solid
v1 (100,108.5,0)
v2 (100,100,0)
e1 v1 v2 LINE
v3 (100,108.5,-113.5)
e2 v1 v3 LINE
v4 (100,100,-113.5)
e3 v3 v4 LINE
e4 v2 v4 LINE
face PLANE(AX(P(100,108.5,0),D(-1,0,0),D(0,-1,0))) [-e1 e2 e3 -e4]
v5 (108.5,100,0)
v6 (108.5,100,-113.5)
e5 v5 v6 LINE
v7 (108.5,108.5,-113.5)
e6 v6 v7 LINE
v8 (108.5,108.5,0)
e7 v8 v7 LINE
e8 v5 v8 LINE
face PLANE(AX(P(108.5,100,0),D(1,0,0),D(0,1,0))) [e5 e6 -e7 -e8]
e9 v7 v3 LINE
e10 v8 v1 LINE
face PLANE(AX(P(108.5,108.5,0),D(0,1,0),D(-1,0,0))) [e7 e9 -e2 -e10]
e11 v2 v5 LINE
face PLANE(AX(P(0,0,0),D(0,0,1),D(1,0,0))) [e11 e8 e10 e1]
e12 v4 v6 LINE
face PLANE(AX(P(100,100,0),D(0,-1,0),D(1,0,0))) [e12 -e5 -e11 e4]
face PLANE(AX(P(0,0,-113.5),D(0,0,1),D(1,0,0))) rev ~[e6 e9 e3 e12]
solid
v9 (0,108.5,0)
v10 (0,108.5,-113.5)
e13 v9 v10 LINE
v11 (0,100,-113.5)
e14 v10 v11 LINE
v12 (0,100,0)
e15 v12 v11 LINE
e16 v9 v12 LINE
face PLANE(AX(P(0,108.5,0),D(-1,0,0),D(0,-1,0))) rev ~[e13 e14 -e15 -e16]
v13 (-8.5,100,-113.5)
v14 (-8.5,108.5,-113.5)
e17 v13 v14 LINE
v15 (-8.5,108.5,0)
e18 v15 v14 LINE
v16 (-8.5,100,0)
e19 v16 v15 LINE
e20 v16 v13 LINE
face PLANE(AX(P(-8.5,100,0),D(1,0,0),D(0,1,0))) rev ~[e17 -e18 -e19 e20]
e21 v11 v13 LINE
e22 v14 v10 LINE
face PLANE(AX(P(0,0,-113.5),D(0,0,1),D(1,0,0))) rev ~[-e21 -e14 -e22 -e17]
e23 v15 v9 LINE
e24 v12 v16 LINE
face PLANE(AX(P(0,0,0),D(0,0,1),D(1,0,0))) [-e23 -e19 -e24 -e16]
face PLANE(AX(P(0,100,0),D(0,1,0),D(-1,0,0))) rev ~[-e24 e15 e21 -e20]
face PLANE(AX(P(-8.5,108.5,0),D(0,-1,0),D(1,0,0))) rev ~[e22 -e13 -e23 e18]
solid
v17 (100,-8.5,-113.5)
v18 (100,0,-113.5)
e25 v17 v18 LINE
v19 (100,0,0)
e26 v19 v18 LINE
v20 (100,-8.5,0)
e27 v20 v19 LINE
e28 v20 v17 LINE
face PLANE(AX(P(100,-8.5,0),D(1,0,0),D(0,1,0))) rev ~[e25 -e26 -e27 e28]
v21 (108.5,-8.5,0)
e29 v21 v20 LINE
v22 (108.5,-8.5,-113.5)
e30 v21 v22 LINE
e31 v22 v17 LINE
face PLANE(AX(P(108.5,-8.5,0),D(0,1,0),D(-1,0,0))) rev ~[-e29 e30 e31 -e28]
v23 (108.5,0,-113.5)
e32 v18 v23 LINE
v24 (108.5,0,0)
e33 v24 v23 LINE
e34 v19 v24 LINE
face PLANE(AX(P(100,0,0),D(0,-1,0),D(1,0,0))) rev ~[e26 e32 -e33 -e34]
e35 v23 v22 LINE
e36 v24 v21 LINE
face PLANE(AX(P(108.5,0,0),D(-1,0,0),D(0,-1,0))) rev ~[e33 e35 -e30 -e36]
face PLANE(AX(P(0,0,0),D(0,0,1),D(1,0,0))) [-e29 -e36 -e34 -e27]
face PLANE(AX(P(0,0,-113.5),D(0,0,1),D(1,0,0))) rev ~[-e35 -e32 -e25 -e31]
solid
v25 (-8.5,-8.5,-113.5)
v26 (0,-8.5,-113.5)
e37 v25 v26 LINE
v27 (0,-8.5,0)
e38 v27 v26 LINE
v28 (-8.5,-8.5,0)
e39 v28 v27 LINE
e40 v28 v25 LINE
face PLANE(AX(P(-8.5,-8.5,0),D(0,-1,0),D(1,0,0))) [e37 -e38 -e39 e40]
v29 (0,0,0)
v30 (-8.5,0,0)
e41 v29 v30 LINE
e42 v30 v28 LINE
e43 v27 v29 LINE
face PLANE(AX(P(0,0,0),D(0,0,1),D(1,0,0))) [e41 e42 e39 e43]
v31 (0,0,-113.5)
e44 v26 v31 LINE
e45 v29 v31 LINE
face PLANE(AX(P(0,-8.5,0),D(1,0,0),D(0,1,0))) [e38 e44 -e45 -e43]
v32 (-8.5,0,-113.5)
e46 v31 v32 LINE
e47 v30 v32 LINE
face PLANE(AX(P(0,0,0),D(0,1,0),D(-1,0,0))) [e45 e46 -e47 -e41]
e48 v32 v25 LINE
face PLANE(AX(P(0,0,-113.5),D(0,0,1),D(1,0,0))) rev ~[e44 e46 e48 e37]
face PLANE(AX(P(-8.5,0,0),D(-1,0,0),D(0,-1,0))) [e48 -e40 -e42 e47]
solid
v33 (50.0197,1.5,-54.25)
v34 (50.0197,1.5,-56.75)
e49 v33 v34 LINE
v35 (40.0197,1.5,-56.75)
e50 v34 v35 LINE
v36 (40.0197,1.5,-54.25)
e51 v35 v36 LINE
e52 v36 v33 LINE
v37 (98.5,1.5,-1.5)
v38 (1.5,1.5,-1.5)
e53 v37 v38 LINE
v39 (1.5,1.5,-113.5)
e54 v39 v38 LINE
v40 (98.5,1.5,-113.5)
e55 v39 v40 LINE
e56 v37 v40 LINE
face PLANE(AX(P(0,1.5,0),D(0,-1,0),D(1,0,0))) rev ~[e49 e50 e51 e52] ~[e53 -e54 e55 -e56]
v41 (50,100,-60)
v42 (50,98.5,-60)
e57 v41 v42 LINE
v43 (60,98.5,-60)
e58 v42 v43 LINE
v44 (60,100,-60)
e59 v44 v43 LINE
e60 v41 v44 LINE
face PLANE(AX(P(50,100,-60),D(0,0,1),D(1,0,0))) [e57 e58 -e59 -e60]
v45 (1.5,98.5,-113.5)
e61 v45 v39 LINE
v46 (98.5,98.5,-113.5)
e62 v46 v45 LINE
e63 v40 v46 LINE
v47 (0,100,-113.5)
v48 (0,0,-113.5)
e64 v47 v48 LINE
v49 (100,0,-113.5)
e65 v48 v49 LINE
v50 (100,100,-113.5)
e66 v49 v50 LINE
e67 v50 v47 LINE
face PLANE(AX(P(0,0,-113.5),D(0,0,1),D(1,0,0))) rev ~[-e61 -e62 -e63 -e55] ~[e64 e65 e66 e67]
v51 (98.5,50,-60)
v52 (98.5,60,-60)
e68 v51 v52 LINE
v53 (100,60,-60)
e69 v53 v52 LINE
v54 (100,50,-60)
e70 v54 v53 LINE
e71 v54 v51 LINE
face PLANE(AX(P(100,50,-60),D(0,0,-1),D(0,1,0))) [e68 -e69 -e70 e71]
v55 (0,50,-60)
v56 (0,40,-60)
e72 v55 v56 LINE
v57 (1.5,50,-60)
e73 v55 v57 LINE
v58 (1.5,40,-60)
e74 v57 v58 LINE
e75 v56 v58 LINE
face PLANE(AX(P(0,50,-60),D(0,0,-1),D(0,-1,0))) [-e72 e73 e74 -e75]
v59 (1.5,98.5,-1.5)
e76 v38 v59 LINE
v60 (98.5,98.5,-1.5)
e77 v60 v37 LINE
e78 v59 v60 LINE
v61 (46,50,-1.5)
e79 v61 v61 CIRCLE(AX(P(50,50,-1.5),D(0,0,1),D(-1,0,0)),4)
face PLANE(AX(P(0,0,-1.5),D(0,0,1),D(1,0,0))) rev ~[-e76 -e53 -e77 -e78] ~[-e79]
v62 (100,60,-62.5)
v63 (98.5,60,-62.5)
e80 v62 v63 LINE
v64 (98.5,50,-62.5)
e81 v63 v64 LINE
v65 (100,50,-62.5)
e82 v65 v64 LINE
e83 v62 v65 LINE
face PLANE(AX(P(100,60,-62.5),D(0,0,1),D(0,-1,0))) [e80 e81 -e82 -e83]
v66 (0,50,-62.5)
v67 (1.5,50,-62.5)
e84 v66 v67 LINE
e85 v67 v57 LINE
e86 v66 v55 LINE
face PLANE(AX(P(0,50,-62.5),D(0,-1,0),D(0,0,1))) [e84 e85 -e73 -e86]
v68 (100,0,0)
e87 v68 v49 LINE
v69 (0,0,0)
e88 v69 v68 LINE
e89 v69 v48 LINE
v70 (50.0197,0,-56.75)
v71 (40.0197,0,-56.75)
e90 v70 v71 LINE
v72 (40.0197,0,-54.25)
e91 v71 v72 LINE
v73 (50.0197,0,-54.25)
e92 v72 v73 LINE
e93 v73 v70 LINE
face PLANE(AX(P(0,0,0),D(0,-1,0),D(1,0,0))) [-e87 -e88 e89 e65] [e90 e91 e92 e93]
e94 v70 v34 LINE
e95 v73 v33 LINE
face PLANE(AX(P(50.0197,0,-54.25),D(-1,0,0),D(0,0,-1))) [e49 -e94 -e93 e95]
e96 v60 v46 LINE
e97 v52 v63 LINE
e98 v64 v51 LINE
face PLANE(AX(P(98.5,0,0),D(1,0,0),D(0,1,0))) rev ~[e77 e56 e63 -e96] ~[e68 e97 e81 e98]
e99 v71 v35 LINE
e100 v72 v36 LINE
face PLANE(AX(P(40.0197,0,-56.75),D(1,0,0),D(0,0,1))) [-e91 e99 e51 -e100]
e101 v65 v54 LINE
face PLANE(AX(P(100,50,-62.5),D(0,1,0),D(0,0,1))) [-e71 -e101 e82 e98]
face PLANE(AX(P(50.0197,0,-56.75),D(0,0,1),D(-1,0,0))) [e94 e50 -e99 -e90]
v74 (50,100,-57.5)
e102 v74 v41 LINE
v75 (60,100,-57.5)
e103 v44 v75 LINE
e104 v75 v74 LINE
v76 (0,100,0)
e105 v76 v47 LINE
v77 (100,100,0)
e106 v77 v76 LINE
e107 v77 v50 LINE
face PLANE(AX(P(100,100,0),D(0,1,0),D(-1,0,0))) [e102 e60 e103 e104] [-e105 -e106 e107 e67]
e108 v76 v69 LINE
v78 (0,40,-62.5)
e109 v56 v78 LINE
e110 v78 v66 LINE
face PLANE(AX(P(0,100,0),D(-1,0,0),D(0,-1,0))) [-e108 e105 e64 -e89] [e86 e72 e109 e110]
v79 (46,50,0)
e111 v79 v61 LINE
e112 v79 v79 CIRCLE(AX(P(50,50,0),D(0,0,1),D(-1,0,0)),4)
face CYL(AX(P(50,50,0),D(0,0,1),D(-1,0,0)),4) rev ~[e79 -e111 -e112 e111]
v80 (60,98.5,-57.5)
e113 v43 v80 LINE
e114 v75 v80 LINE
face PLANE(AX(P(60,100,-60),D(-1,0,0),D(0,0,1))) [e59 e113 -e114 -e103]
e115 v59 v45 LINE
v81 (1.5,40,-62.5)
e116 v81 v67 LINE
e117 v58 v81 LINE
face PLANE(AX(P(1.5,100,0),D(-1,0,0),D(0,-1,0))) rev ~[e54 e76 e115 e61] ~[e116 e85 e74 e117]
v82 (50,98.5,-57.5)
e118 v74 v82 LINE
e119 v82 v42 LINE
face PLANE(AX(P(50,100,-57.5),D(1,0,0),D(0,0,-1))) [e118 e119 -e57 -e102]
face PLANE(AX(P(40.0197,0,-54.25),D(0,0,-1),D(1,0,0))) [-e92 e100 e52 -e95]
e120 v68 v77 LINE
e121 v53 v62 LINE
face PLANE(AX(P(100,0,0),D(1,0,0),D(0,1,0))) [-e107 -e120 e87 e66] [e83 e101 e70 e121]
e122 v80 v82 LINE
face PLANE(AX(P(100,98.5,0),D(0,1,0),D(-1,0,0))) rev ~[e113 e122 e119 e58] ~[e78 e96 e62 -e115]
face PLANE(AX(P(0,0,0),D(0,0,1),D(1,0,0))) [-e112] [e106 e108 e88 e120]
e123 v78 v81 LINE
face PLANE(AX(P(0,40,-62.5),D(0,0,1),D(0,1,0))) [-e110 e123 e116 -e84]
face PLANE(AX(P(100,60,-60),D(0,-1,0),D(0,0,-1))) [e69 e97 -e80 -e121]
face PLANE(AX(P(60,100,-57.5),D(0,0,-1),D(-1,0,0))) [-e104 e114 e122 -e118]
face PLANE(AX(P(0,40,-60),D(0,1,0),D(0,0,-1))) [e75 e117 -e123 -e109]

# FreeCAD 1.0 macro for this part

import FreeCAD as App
import Part
import Sketcher
Q = App.Units.Quantity


def faces_at(feature, points):
    """Names of the faces that lie closest to the given points."""
    faces = feature.Shape.Faces
    near = lambda p: min(range(len(faces)), key=lambda i: faces[i].distToShape(Part.Vertex(*p))[0])
    return sorted({f"Face{near(p) + 1}" for p in points})


def add_polygon(sketch, points):
    """Adds a closed chain of lines whose ends are joined by coincident constraints."""
    first, n = sketch.GeometryCount, len(points)
    for a, b in zip(points, points[1:] + points[:1]):
        sketch.addGeometry(Part.LineSegment(App.Vector(*a, 0), App.Vector(*b, 0)), False)
    for i in range(n):
        sketch.addConstraint(Sketcher.Constraint("Coincident", first + i, 2, first + (i + 1) % n, 1))

doc = App.newDocument("Part")
body = doc.addObject("PartDesign::Body", "Body")
body.AllowCompound = True

# Sketch on XY plane
sketch1 = body.newObject("Sketcher::SketchObject", "Sketch")
sketch1.AttachmentSupport = (doc.getObject("XY_Plane"), [""])
sketch1.MapMode = "FlatFace"
add_polygon(sketch1, [(0, 100), (0, 0), (100, 0), (100, 100)])  # lines 0-3
sketch1.addConstraint([
    Sketcher.Constraint("Vertical", 0),
    Sketcher.Constraint("Horizontal", 1),
    Sketcher.Constraint("Vertical", 2),
    Sketcher.Constraint("Horizontal", 3),
    Sketcher.Constraint("Coincident", 0, 2, -1, 1),
    Sketcher.Constraint("Equal", 3, 0),
    Sketcher.Constraint("DistanceX", 1, 1, 1, 2, Q("100 mm")),
])
pad1 = body.newObject("PartDesign::Pad", "Pad")
pad1.Profile = sketch1
pad1.Length = 113.5
pad1.Reversed = True
doc.recompute()

thickness = body.newObject("PartDesign::Thickness", "Thickness")
thickness.Base = (pad1, faces_at(pad1, [(33.333, 66.667, -113.5)]))
thickness.Value = 1.5
thickness.Reversed = True
thickness.Join = "Intersection"

# Sketch on XY plane
sketch2 = body.newObject("Sketcher::SketchObject", "Sketch001")
sketch2.AttachmentSupport = (doc.getObject("XY_Plane"), [""])
sketch2.MapMode = "FlatFace"
add_polygon(sketch2, [(0, -8), (0, 0), (-8, 0), (-8, -8)])  # lines 0-3
add_polygon(sketch2, [(-8, 100), (0, 100), (0, 108), (-8, 108)])  # lines 4-7
add_polygon(sketch2, [(100, 108), (100, 100), (108, 100), (108, 108)])  # lines 8-11
add_polygon(sketch2, [(108, 0), (100, 0), (100, -8), (108, -8)])  # lines 12-15
sketch2.addConstraint([
    Sketcher.Constraint("Vertical", 0),
    Sketcher.Constraint("Horizontal", 1),
    Sketcher.Constraint("Vertical", 2),
    Sketcher.Constraint("Horizontal", 3),
    Sketcher.Constraint("Horizontal", 4),
    Sketcher.Constraint("Vertical", 5),
    Sketcher.Constraint("Horizontal", 6),
    Sketcher.Constraint("Vertical", 7),
    Sketcher.Constraint("Vertical", 8),
    Sketcher.Constraint("Horizontal", 9),
    Sketcher.Constraint("Vertical", 10),
    Sketcher.Constraint("Horizontal", 11),
    Sketcher.Constraint("Horizontal", 12),
    Sketcher.Constraint("Vertical", 13),
    Sketcher.Constraint("Horizontal", 14),
    Sketcher.Constraint("Vertical", 15),
    Sketcher.Constraint("Coincident", 0, 2, -1, 1),
    Sketcher.Constraint("PointOnObject", 4, 2, -2),
    Sketcher.Constraint("PointOnObject", 12, 2, -1),
    Sketcher.Constraint("Horizontal", 7, 2, 8, 2),
    Sketcher.Constraint("Horizontal", 6, 2, 10, 2),
    Sketcher.Constraint("Horizontal", 3, 2, 13, 2),
    Sketcher.Constraint("Vertical", 2, 2, 6, 2),
    Sketcher.Constraint("Vertical", 11, 2, 12, 2),
    Sketcher.Constraint("Vertical", 10, 2, 14, 2),
    Sketcher.Constraint("Equal", 6, 9),
    Sketcher.Constraint("Equal", 14, 0),
    Sketcher.Constraint("Equal", 2, 5),
    Sketcher.Constraint("DistanceX", 1, 2, 1, 1, Q("8.5 mm")),
    Sketcher.Constraint("DistanceY", -1, 1, 4, 2, Q("100 mm")),
    Sketcher.Constraint("DistanceX", -1, 1, 8, 2, Q("100 mm")),
])
pad2 = body.newObject("PartDesign::Pad", "Pad001")
pad2.Profile = sketch2
pad2.Length = 113.5
pad2.Reversed = True

# Sketch on YZ plane
sketch3 = body.newObject("Sketcher::SketchObject", "Sketch002")
sketch3.AttachmentSupport = (doc.getObject("YZ_Plane"), [""])
sketch3.MapMode = "FlatFace"
sketch3.AttachmentOffset = App.Placement(App.Vector(0, 0, 100), App.Rotation())
add_polygon(sketch3, [(60, -60), (50, -60), (50, -62.5), (60, -62.5)])  # lines 0-3
sketch3.addConstraint([
    Sketcher.Constraint("Horizontal", 0),
    Sketcher.Constraint("Vertical", 1),
    Sketcher.Constraint("Horizontal", 2),
    Sketcher.Constraint("Vertical", 3),
    Sketcher.Constraint("DistanceX", 0, 2, 0, 1, Q("10 mm")),
    Sketcher.Constraint("DistanceY", 1, 2, 1, 1, Q("2.5 mm")),
    Sketcher.Constraint("DistanceX", -1, 1, 0, 2, Q("50 mm")),
    Sketcher.Constraint("DistanceY", 0, 2, -1, 1, Q("60 mm")),
])
pocket1 = body.newObject("PartDesign::Pocket", "Pocket")
pocket1.Profile = sketch3
pocket1.Length = 10

# Sketch on YZ plane
sketch4 = body.newObject("Sketcher::SketchObject", "Sketch003")
sketch4.AttachmentSupport = (doc.getObject("YZ_Plane"), [""])
sketch4.MapMode = "FlatFace"
add_polygon(sketch4, [(40, -60), (50, -60), (50, -62.5), (40, -62.5)])  # lines 0-3
sketch4.addConstraint([
    Sketcher.Constraint("Horizontal", 0),
    Sketcher.Constraint("Vertical", 1),
    Sketcher.Constraint("Horizontal", 2),
    Sketcher.Constraint("Vertical", 3),
    Sketcher.Constraint("DistanceX", 0, 1, 0, 2, Q("10 mm")),
    Sketcher.Constraint("DistanceY", 1, 2, 1, 1, Q("2.5 mm")),
    Sketcher.Constraint("DistanceX", -1, 1, 0, 2, Q("50 mm")),
    Sketcher.Constraint("DistanceY", 0, 2, -1, 1, Q("60 mm")),
])
pocket2 = body.newObject("PartDesign::Pocket", "Pocket001")
pocket2.Profile = sketch4
pocket2.Length = 10
pocket2.Reversed = True

# Sketch on XZ plane
sketch5 = body.newObject("Sketcher::SketchObject", "Sketch004")
sketch5.AttachmentSupport = (doc.getObject("XZ_Plane"), [""])
sketch5.MapMode = "FlatFace"
sketch5.AttachmentOffset = App.Placement(App.Vector(0, 0, -100), App.Rotation())
add_polygon(sketch5, [(60, -60), (50, -60), (50, -57.5), (60, -57.5)])  # lines 0-3
sketch5.addConstraint([
    Sketcher.Constraint("Horizontal", 0),
    Sketcher.Constraint("Vertical", 1),
    Sketcher.Constraint("Horizontal", 2),
    Sketcher.Constraint("Vertical", 3),
    Sketcher.Constraint("DistanceX", 0, 2, 0, 1, Q("10 mm")),
    Sketcher.Constraint("DistanceY", 1, 1, 1, 2, Q("2.5 mm")),
    Sketcher.Constraint("DistanceX", -1, 1, 0, 2, Q("50 mm")),
    Sketcher.Constraint("DistanceY", 0, 2, -1, 1, Q("60 mm")),
])
pocket3 = body.newObject("PartDesign::Pocket", "Pocket002")
pocket3.Profile = sketch5
pocket3.Length = 10
pocket3.Reversed = True

# Sketch on XZ plane
sketch6 = body.newObject("Sketcher::SketchObject", "Sketch005")
sketch6.AttachmentSupport = (doc.getObject("XZ_Plane"), [""])
sketch6.MapMode = "FlatFace"
add_polygon(sketch6, [(40, -56.8), (50, -56.8), (50, -54.2), (40, -54.2)])  # lines 0-3
sketch6.addConstraint([
    Sketcher.Constraint("Horizontal", 0),
    Sketcher.Constraint("Vertical", 1),
    Sketcher.Constraint("Horizontal", 2),
    Sketcher.Constraint("Vertical", 3),
    Sketcher.Constraint("DistanceX", 0, 1, 0, 2, Q("10 mm")),
    Sketcher.Constraint("DistanceY", 1, 1, 1, 2, Q("2.5 mm")),
    Sketcher.Constraint("DistanceY", 0, 2, -1, 1, Q("56.75 mm")),
    Sketcher.Constraint("DistanceX", -1, 1, 0, 2, Q("50.0197 mm")),
])
pocket4 = body.newObject("PartDesign::Pocket", "Pocket003")
pocket4.Profile = sketch6
pocket4.Length = 10

# Sketch on XY plane
sketch7 = body.newObject("Sketcher::SketchObject", "Sketch006")
sketch7.AttachmentSupport = (doc.getObject("XY_Plane"), [""])
sketch7.MapMode = "FlatFace"
sketch7.addGeometry(Part.Circle(App.Vector(50, 50, 0), App.Vector(0, 0, 1), 4), False)
sketch7.addConstraint([
    Sketcher.Constraint("Diameter", 0, Q("8 mm")),
    Sketcher.Constraint("DistanceX", -1, 1, 0, 3, Q("50 mm")),
    Sketcher.Constraint("DistanceY", -1, 1, 0, 3, Q("50 mm")),
])
pocket5 = body.newObject("PartDesign::Pocket", "Pocket004")
pocket5.Profile = sketch7
pocket5.Length = 113.5

doc.recompute()
